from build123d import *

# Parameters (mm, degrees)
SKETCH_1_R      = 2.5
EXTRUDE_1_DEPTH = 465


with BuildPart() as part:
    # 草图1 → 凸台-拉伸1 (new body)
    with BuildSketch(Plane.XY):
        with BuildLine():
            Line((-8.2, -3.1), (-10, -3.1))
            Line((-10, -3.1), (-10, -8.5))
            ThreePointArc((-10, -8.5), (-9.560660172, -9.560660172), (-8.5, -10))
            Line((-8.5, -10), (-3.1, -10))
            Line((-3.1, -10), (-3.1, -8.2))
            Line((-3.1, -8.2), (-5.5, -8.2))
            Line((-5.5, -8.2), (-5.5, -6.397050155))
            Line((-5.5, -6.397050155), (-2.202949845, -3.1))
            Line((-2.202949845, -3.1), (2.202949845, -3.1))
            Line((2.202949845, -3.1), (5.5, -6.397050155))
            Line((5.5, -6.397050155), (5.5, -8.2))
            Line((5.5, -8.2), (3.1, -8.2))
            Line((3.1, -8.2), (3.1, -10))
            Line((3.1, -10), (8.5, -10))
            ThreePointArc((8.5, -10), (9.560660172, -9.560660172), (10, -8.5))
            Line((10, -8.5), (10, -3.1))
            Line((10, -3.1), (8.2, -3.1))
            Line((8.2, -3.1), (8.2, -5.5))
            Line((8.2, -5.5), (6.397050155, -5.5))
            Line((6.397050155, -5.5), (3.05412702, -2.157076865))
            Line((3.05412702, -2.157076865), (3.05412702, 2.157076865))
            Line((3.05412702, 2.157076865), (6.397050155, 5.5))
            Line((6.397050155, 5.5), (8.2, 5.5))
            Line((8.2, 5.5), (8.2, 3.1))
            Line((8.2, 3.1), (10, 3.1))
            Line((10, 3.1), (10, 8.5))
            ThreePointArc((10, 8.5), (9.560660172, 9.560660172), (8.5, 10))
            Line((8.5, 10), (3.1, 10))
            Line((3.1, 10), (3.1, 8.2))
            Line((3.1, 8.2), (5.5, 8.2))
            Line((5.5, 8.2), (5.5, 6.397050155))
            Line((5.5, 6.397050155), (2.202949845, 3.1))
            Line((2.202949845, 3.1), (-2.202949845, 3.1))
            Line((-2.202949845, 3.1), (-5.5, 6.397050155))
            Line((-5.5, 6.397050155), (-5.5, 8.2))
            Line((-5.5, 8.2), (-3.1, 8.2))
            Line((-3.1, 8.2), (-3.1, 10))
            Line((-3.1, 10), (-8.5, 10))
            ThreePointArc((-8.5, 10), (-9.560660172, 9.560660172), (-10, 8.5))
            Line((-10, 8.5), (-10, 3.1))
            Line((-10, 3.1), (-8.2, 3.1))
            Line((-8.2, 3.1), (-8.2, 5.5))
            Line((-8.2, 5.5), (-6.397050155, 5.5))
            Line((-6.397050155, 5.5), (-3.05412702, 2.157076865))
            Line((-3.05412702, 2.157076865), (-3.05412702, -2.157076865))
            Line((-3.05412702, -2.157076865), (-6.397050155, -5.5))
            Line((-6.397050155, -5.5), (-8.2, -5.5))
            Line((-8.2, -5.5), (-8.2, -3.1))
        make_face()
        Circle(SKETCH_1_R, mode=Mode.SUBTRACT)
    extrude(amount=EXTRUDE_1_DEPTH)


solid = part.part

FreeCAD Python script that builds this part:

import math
import FreeCAD as App
import Part
import Sketcher
Q = App.Units.Quantity

doc = App.newDocument("Part")
body = doc.addObject("PartDesign::Body", "Body")

sketch1 = body.newObject("Sketcher::SketchObject", "Sketch")
sketch1.AttachmentSupport = (doc.getObject("XY_Plane"), [""])
sketch1.MapMode = "FlatFace"
sketch1.addGeometry([
    Part.LineSegment(App.Vector(-8.2, -3.1, 0), App.Vector(-10, -3.1, 0)),
    Part.LineSegment(App.Vector(-10, -3.1, 0), App.Vector(-10, -8.5, 0)),
    Part.ArcOfCircle(Part.Circle(App.Vector(-8.5, -8.5, 0), App.Vector(0, 0, 1), 1.5), math.radians(180), math.radians(270)),
    Part.LineSegment(App.Vector(-8.5, -10, 0), App.Vector(-3.1, -10, 0)),
    Part.LineSegment(App.Vector(-3.1, -10, 0), App.Vector(-3.1, -8.2, 0)),
    Part.LineSegment(App.Vector(-3.1, -8.2, 0), App.Vector(-5.5, -8.2, 0)),
    Part.LineSegment(App.Vector(-5.5, -8.2, 0), App.Vector(-5.5, -6.39705, 0)),
    Part.LineSegment(App.Vector(-5.5, -6.39705, 0), App.Vector(-2.20295, -3.1, 0)),
    Part.LineSegment(App.Vector(-2.20295, -3.1, 0), App.Vector(2.20295, -3.1, 0)),
    Part.LineSegment(App.Vector(2.20295, -3.1, 0), App.Vector(5.5, -6.39705, 0)),
    Part.LineSegment(App.Vector(5.5, -6.39705, 0), App.Vector(5.5, -8.2, 0)),
    Part.LineSegment(App.Vector(5.5, -8.2, 0), App.Vector(3.1, -8.2, 0)),
    Part.LineSegment(App.Vector(3.1, -8.2, 0), App.Vector(3.1, -10, 0)),
    Part.LineSegment(App.Vector(3.1, -10, 0), App.Vector(8.5, -10, 0)),
    Part.ArcOfCircle(Part.Circle(App.Vector(8.5, -8.5, 0), App.Vector(0, 0, 1), 1.5), math.radians(-90), math.radians(0)),
    Part.LineSegment(App.Vector(10, -8.5, 0), App.Vector(10, -3.1, 0)),
    Part.LineSegment(App.Vector(10, -3.1, 0), App.Vector(8.2, -3.1, 0)),
    Part.LineSegment(App.Vector(8.2, -3.1, 0), App.Vector(8.2, -5.5, 0)),
    Part.LineSegment(App.Vector(8.2, -5.5, 0), App.Vector(6.39705, -5.5, 0)),
    Part.LineSegment(App.Vector(6.39705, -5.5, 0), App.Vector(3.054127, -2.157077, 0)),
    Part.LineSegment(App.Vector(3.054127, -2.157077, 0), App.Vector(3.054127, 2.157077, 0)),
    Part.LineSegment(App.Vector(3.054127, 2.157077, 0), App.Vector(6.39705, 5.5, 0)),
    Part.LineSegment(App.Vector(6.39705, 5.5, 0), App.Vector(8.2, 5.5, 0)),
    Part.LineSegment(App.Vector(8.2, 5.5, 0), App.Vector(8.2, 3.1, 0)),
    Part.LineSegment(App.Vector(8.2, 3.1, 0), App.Vector(10, 3.1, 0)),
    Part.LineSegment(App.Vector(10, 3.1, 0), App.Vector(10, 8.5, 0)),
    Part.ArcOfCircle(Part.Circle(App.Vector(8.5, 8.5, 0), App.Vector(0, 0, 1), 1.5), math.radians(0), math.radians(90)),
    Part.LineSegment(App.Vector(8.5, 10, 0), App.Vector(3.1, 10, 0)),
    Part.LineSegment(App.Vector(3.1, 10, 0), App.Vector(3.1, 8.2, 0)),
    Part.LineSegment(App.Vector(3.1, 8.2, 0), App.Vector(5.5, 8.2, 0)),
    Part.LineSegment(App.Vector(5.5, 8.2, 0), App.Vector(5.5, 6.39705, 0)),
    Part.LineSegment(App.Vector(5.5, 6.39705, 0), App.Vector(2.20295, 3.1, 0)),
    Part.LineSegment(App.Vector(2.20295, 3.1, 0), App.Vector(-2.20295, 3.1, 0)),
    Part.LineSegment(App.Vector(-2.20295, 3.1, 0), App.Vector(-5.5, 6.39705, 0)),
    Part.LineSegment(App.Vector(-5.5, 6.39705, 0), App.Vector(-5.5, 8.2, 0)),
    Part.LineSegment(App.Vector(-5.5, 8.2, 0), App.Vector(-3.1, 8.2, 0)),
    Part.LineSegment(App.Vector(-3.1, 8.2, 0), App.Vector(-3.1, 10, 0)),
    Part.LineSegment(App.Vector(-3.1, 10, 0), App.Vector(-8.5, 10, 0)),
    Part.ArcOfCircle(Part.Circle(App.Vector(-8.5, 8.5, 0), App.Vector(0, 0, 1), 1.5), math.radians(90), math.radians(180)),
    Part.LineSegment(App.Vector(-10, 8.5, 0), App.Vector(-10, 3.1, 0)),
    Part.LineSegment(App.Vector(-10, 3.1, 0), App.Vector(-8.2, 3.1, 0)),
    Part.LineSegment(App.Vector(-8.2, 3.1, 0), App.Vector(-8.2, 5.5, 0)),
    Part.LineSegment(App.Vector(-8.2, 5.5, 0), App.Vector(-6.39705, 5.5, 0)),
    Part.LineSegment(App.Vector(-6.39705, 5.5, 0), App.Vector(-3.054127, 2.157077, 0)),
    Part.LineSegment(App.Vector(-3.054127, 2.157077, 0), App.Vector(-3.054127, -2.157077, 0)),
    Part.LineSegment(App.Vector(-3.054127, -2.157077, 0), App.Vector(-6.39705, -5.5, 0)),
    Part.LineSegment(App.Vector(-6.39705, -5.5, 0), App.Vector(-8.2, -5.5, 0)),
    Part.LineSegment(App.Vector(-8.2, -5.5, 0), App.Vector(-8.2, -3.1, 0)),
    Part.Circle(App.Vector(0, 0, 0), App.Vector(0, 0, 1), 2.5),
], False)
sketch1.addConstraint([
    Sketcher.Constraint("Coincident", 0, 2, 1, 1),
    Sketcher.Constraint("Tangent", 1, 2, 2, 1),
    Sketcher.Constraint("Tangent", 2, 2, 3, 1),
    Sketcher.Constraint("Coincident", 3, 2, 4, 1),
    Sketcher.Constraint("Coincident", 4, 2, 5, 1),
    Sketcher.Constraint("Coincident", 5, 2, 6, 1),
    Sketcher.Constraint("Coincident", 6, 2, 7, 1),
    Sketcher.Constraint("Coincident", 7, 2, 8, 1),
    Sketcher.Constraint("Coincident", 8, 2, 9, 1),
    Sketcher.Constraint("Coincident", 9, 2, 10, 1),
    Sketcher.Constraint("Coincident", 10, 2, 11, 1),
    Sketcher.Constraint("Coincident", 11, 2, 12, 1),
    Sketcher.Constraint("Coincident", 12, 2, 13, 1),
    Sketcher.Constraint("Tangent", 13, 2, 14, 1),
    Sketcher.Constraint("Tangent", 14, 2, 15, 1),
    Sketcher.Constraint("Coincident", 15, 2, 16, 1),
    Sketcher.Constraint("Coincident", 16, 2, 17, 1),
    Sketcher.Constraint("Coincident", 17, 2, 18, 1),
    Sketcher.Constraint("Coincident", 18, 2, 19, 1),
    Sketcher.Constraint("Coincident", 19, 2, 20, 1),
    Sketcher.Constraint("Coincident", 20, 2, 21, 1),
    Sketcher.Constraint("Coincident", 21, 2, 22, 1),
    Sketcher.Constraint("Coincident", 22, 2, 23, 1),
    Sketcher.Constraint("Coincident", 23, 2, 24, 1),
    Sketcher.Constraint("Coincident", 24, 2, 25, 1),
    Sketcher.Constraint("Tangent", 25, 2, 26, 1),
    Sketcher.Constraint("Tangent", 26, 2, 27, 1),
    Sketcher.Constraint("Coincident", 27, 2, 28, 1),
    Sketcher.Constraint("Coincident", 28, 2, 29, 1),
    Sketcher.Constraint("Coincident", 29, 2, 30, 1),
    Sketcher.Constraint("Coincident", 30, 2, 31, 1),
    Sketcher.Constraint("Coincident", 31, 2, 32, 1),
    Sketcher.Constraint("Coincident", 32, 2, 33, 1),
    Sketcher.Constraint("Coincident", 33, 2, 34, 1),
    Sketcher.Constraint("Coincident", 34, 2, 35, 1),
    Sketcher.Constraint("Coincident", 35, 2, 36, 1),
    Sketcher.Constraint("Coincident", 36, 2, 37, 1),
    Sketcher.Constraint("Tangent", 37, 2, 38, 1),
    Sketcher.Constraint("Tangent", 38, 2, 39, 1),
    Sketcher.Constraint("Coincident", 39, 2, 40, 1),
    Sketcher.Constraint("Coincident", 40, 2, 41, 1),
    Sketcher.Constraint("Coincident", 41, 2, 42, 1),
    Sketcher.Constraint("Coincident", 42, 2, 43, 1),
    Sketcher.Constraint("Coincident", 43, 2, 44, 1),
    Sketcher.Constraint("Coincident", 44, 2, 45, 1),
    Sketcher.Constraint("Coincident", 45, 2, 46, 1),
    Sketcher.Constraint("Coincident", 46, 2, 47, 1),
    Sketcher.Constraint("Coincident", 47, 2, 0, 1),
    Sketcher.Constraint("Horizontal", 0),
    Sketcher.Constraint("Vertical", 1),
    Sketcher.Constraint("Horizontal", 3),
    Sketcher.Constraint("Vertical", 4),
    Sketcher.Constraint("Horizontal", 5),
    Sketcher.Constraint("Vertical", 6),
    Sketcher.Constraint("Horizontal", 8),
    Sketcher.Constraint("Vertical", 10),
    Sketcher.Constraint("Horizontal", 11),
    Sketcher.Constraint("Vertical", 12),
    Sketcher.Constraint("Horizontal", 13),
    Sketcher.Constraint("Vertical", 15),
    Sketcher.Constraint("Horizontal", 16),
    Sketcher.Constraint("Vertical", 17),
    Sketcher.Constraint("Horizontal", 18),
    Sketcher.Constraint("Vertical", 20),
    Sketcher.Constraint("Horizontal", 22),
    Sketcher.Constraint("Vertical", 23),
    Sketcher.Constraint("Horizontal", 24),
    Sketcher.Constraint("Vertical", 25),
    Sketcher.Constraint("Horizontal", 27),
    Sketcher.Constraint("Vertical", 28),
    Sketcher.Constraint("Horizontal", 29),
    Sketcher.Constraint("Vertical", 30),
    Sketcher.Constraint("Horizontal", 32),
    Sketcher.Constraint("Vertical", 34),
    Sketcher.Constraint("Horizontal", 35),
    Sketcher.Constraint("Vertical", 36),
    Sketcher.Constraint("Horizontal", 37),
    Sketcher.Constraint("Vertical", 39),
    Sketcher.Constraint("Horizontal", 40),
    Sketcher.Constraint("Vertical", 41),
    Sketcher.Constraint("Horizontal", 42),
    Sketcher.Constraint("Vertical", 44),
    Sketcher.Constraint("Horizontal", 46),
    Sketcher.Constraint("Vertical", 47),
    Sketcher.Constraint("Coincident", 48, 3, -1, 1),
    Sketcher.Constraint("Equal", 2, 14),
    Sketcher.Constraint("Equal", 14, 26),
    Sketcher.Constraint("Equal", 26, 38),
    Sketcher.Constraint("Symmetric", 2, 3, 26, 3, -1, 1),
    Sketcher.Constraint("Symmetric", 14, 3, 38, 3, -1, 1),
    Sketcher.Constraint("Symmetric", 4, 2, 28, 2, -1, 1),
    Sketcher.Constraint("Symmetric", 6, 2, 30, 2, -1, 1),
    Sketcher.Constraint("Symmetric", 7, 2, 31, 2, -1, 1),
    Sketcher.Constraint("Symmetric", 9, 2, 33, 2, -1, 1),
    Sketcher.Constraint("Symmetric", 11, 2, 35, 2, -1, 1),
    Sketcher.Constraint("Symmetric", 16, 2, 40, 2, -1, 1),
    Sketcher.Constraint("Symmetric", 18, 2, 42, 2, -1, 1),
    Sketcher.Constraint("Symmetric", 19, 2, 43, 2, -1, 1),
    Sketcher.Constraint("Symmetric", 21, 2, 45, 2, -1, 1),
    Sketcher.Constraint("Symmetric", 23, 2, 47, 2, -1, 1),
    Sketcher.Constraint("Symmetric", 2, 3, 14, 3, -2),
    Sketcher.Constraint("Symmetric", 6, 2, 9, 2, -2),
    Sketcher.Constraint("Symmetric", 4, 2, 11, 2, -2),
    Sketcher.Constraint("Symmetric", 23, 2, 40, 2, -2),
    Sketcher.Constraint("Symmetric", 21, 2, 42, 2, -2),
    Sketcher.Constraint("Perpendicular", 7, 9),
    Sketcher.Constraint("Parallel", 9, 19),
    Sketcher.Constraint("Perpendicular", 19, 21),
    Sketcher.Constraint("Perpendicular", 31, 33),
    Sketcher.Constraint("Perpendicular", 43, 45),
    Sketcher.Constraint("Horizontal", 0, 2, 7, 2),
    Sketcher.Constraint("Horizontal", 20, 2, 43, 2),
    Sketcher.Constraint("Equal", 37, 1),
    Sketcher.Constraint("Equal", 40, 4),
    Sketcher.Constraint("Equal", 46, 6),
    Sketcher.Constraint("Equal", 35, 17),
    Sketcher.Constraint("Diameter", 48, Q("5 mm")),
    Sketcher.Constraint("Radius", 2, Q("1.5 mm")),
    Sketcher.Constraint("DistanceX", 0, 2, 0, 1, Q("1.8 mm")),
    Sketcher.Constraint("DistanceX", 3, 1, 3, 2, Q("5.4 mm")),
    Sketcher.Constraint("DistanceX", 5, 2, 5, 1, Q("2.4 mm")),
    Sketcher.Constraint("DistanceX", 0, 2, -1, 1, Q("10 mm")),
    Sketcher.Constraint("DistanceY", 2, 2, -1, 1, Q("10 mm")),
    Sketcher.Constraint("DistanceX", 8, 1, 8, 2, Q("4.4059 mm")),
    Sketcher.Constraint("DistanceY", 20, 1, 20, 2, Q("4.314154 mm")),
])
pad1 = body.newObject("PartDesign::Pad", "Pad")
pad1.Profile = sketch1
pad1.Length = 465

doc.recompute()
